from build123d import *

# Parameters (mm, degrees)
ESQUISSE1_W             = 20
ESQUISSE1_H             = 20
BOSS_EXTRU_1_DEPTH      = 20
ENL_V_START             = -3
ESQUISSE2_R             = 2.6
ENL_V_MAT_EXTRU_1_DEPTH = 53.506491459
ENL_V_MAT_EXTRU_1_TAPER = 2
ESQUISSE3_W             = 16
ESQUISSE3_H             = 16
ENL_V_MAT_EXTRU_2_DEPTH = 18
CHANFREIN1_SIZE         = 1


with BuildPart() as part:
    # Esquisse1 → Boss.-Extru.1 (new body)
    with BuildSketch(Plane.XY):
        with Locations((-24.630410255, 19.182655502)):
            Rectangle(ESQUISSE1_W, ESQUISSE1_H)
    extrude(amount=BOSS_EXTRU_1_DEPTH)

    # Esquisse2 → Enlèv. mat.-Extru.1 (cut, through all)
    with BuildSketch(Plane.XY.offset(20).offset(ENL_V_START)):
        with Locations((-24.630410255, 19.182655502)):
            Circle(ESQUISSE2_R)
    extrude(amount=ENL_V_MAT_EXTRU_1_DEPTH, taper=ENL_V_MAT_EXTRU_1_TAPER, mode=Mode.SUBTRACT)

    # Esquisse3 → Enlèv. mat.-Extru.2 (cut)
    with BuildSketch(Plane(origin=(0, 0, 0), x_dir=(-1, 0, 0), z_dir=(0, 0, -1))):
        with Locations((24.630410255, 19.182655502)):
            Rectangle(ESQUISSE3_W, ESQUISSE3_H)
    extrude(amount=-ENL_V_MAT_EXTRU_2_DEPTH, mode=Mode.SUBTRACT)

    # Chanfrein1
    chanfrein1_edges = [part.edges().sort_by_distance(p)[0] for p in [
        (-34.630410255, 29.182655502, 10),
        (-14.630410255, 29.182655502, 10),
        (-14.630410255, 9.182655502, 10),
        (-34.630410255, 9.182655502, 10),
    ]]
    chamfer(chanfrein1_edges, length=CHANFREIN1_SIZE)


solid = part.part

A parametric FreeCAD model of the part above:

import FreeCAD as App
import Part
import Sketcher
from FreeCAD import Vector


def edges_at(feature, points):
    """Names of the edges that pass closest to the given points."""
    edges = feature.Shape.Edges
    near = lambda p: min(range(len(edges)), key=lambda i: edges[i].distToShape(Part.Vertex(*p))[0])
    return sorted({f"Edge{near(p) + 1}" for p in points})


def add_polygon(sketch, points):
    """Adds a closed chain of lines whose ends are joined by coincident constraints."""
    first, n = sketch.GeometryCount, len(points)
    for a, b in zip(points, points[1:] + points[:1]):
        sketch.addGeometry(Part.LineSegment(App.Vector(*a, 0), App.Vector(*b, 0)), False)
    for i in range(n):
        sketch.addConstraint(Sketcher.Constraint("Coincident", first + i, 2, first + (i + 1) % n, 1))

doc = App.newDocument("Part")
body = doc.addObject("PartDesign::Body", "Body")

# Sketch on XY plane
sketch1 = body.newObject("Sketcher::SketchObject", "Sketch")
sketch1.AttachmentSupport = (doc.getObject("XY_Plane"), [""])
sketch1.MapMode = "FlatFace"
add_polygon(sketch1, [(-35, 29), (-35, 9), (-15, 9), (-15, 29)])  # lines 0-3
sketch1.addConstraint(Sketcher.Constraint("Vertical", 0))
sketch1.addConstraint(Sketcher.Constraint("Horizontal", 1))
sketch1.addConstraint(Sketcher.Constraint("Vertical", 2))
sketch1.addConstraint(Sketcher.Constraint("Horizontal", 3))
sketch1.addConstraint(Sketcher.Constraint("Equal", 3, 0))
sketch1.addConstraint(Sketcher.Constraint("DistanceX", 1, 1, 1, 2, 20.0))
sketch1.addConstraint(Sketcher.Constraint("DistanceX", 0, 2, -1, 1, 34.63041))
sketch1.addConstraint(Sketcher.Constraint("DistanceY", -1, 1, 0, 2, 9.182656))
pad1 = body.newObject("PartDesign::Pad", "Pad")
pad1.Profile = sketch1
pad1.Length = 20

# Sketch on XY plane
sketch2 = body.newObject("Sketcher::SketchObject", "Sketch001")
sketch2.AttachmentSupport = (doc.getObject("XY_Plane"), [""])
sketch2.MapMode = "FlatFace"
sketch2.AttachmentOffset = App.Placement(Vector(0, 0, 17), App.Rotation())
sketch2.addGeometry(Part.Circle(Vector(-24.6, 19.2, 0), Vector(0, 0, 1), 2.6), False)
sketch2.addConstraint(Sketcher.Constraint("Diameter", 0, 5.2))
sketch2.addConstraint(Sketcher.Constraint("DistanceX", 0, 3, -1, 1, 24.63041))
sketch2.addConstraint(Sketcher.Constraint("DistanceY", -1, 1, 0, 3, 19.182656))
pocket1 = body.newObject("PartDesign::Pocket", "Pocket")
pocket1.Profile = sketch2
pocket1.Type = "ThroughAll"
pocket1.Reversed = True
pocket1.TaperAngle = -2

# Sketch on XY plane
sketch3 = body.newObject("Sketcher::SketchObject", "Sketch002")
sketch3.AttachmentSupport = (doc.getObject("XY_Plane"), [""])
sketch3.MapMode = "FlatFace"
add_polygon(sketch3, [(-17, 27), (-17, 11), (-33, 11), (-33, 27)])  # lines 0-3
sketch3.addConstraint(Sketcher.Constraint("Vertical", 0))
sketch3.addConstraint(Sketcher.Constraint("Horizontal", 1))
sketch3.addConstraint(Sketcher.Constraint("Vertical", 2))
sketch3.addConstraint(Sketcher.Constraint("Horizontal", 3))
sketch3.addConstraint(Sketcher.Constraint("Equal", 3, 0))
sketch3.addConstraint(Sketcher.Constraint("DistanceX", 1, 2, 1, 1, 16.0))
sketch3.addConstraint(Sketcher.Constraint("DistanceX", 0, 2, -1, 1, 16.63041))
sketch3.addConstraint(Sketcher.Constraint("DistanceY", -1, 1, 0, 2, 11.182656))
pocket2 = body.newObject("PartDesign::Pocket", "Pocket001")
pocket2.Profile = sketch3
pocket2.Length = 18
pocket2.Reversed = True
doc.recompute()

chamfer = body.newObject("PartDesign::Chamfer", "Chamfer")
chamfer.Base = (pocket2, edges_at(pocket2, [
    (-34.63, 29.183, 10),
    (-14.63, 29.183, 10),
    (-14.63, 9.183, 10),
    (-34.63, 9.183, 10),
]))
chamfer.Size = 1

doc.recompute()
